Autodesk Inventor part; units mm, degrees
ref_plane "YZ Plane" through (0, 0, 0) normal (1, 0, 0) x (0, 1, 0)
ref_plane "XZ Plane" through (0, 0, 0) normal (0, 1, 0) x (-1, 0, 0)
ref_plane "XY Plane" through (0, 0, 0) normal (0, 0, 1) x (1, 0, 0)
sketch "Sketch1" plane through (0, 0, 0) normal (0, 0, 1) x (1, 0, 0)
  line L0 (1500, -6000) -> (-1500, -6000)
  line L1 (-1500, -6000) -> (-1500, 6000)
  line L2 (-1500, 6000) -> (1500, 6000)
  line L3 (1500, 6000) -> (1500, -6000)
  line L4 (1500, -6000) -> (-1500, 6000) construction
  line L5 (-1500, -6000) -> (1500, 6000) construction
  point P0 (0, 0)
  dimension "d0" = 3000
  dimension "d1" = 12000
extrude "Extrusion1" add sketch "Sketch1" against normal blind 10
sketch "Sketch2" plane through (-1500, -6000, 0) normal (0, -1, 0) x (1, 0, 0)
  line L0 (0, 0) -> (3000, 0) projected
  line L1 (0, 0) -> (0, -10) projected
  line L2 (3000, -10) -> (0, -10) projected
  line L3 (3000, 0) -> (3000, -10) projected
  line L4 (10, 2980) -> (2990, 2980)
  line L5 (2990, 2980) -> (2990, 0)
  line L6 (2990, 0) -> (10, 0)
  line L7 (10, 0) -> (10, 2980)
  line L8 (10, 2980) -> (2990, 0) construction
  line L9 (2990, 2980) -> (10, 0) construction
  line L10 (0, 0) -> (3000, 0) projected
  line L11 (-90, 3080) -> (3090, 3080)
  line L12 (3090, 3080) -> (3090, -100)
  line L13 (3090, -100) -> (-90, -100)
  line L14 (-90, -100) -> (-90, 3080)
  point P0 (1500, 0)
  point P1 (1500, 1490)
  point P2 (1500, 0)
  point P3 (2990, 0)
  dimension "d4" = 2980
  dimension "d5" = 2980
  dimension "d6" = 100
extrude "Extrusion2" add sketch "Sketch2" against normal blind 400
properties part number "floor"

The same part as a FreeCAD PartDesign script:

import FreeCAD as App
import Part
import Sketcher

V = App.Vector
Q = App.Units.Quantity


def add_polygon(sketch, points):
    """Adds a closed chain of lines whose ends are joined by coincident constraints."""
    first, n = sketch.GeometryCount, len(points)
    for a, b in zip(points, points[1:] + points[:1]):
        sketch.addGeometry(Part.LineSegment(App.Vector(*a, 0), App.Vector(*b, 0)), False)
    for i in range(n):
        sketch.addConstraint(Sketcher.Constraint("Coincident", first + i, 2, first + (i + 1) % n, 1))

doc = App.newDocument("Part")
body = doc.addObject("PartDesign::Body", "Body")

# Sketch on XY plane
sketch1 = body.newObject("Sketcher::SketchObject", "Sketch")
sketch1.AttachmentSupport = (doc.getObject("XY_Plane"), [""])
sketch1.MapMode = "FlatFace"
add_polygon(sketch1, [(-1500, -6000), (1500, -6000), (1500, 6000), (-1500, 6000)])  # lines 0-3
sketch1.addConstraint(Sketcher.Constraint("Horizontal", 0))
sketch1.addConstraint(Sketcher.Constraint("Vertical", 1))
sketch1.addConstraint(Sketcher.Constraint("Horizontal", 2))
sketch1.addConstraint(Sketcher.Constraint("Vertical", 3))
sketch1.addConstraint(Sketcher.Constraint("Symmetric", 0, 2, 2, 2, -1, 1))
sketch1.addConstraint(Sketcher.Constraint("DistanceX", 0, 1, 0, 2, Q("3000 mm")))
sketch1.addConstraint(Sketcher.Constraint("DistanceY", 1, 1, 1, 2, Q("12000 mm")))
pad1 = body.newObject("PartDesign::Pad", "Pad")
pad1.Profile = sketch1
pad1.Length = 10
pad1.Reversed = True

# Sketch on XZ plane
sketch2 = body.newObject("Sketcher::SketchObject", "Sketch001")
sketch2.AttachmentSupport = (doc.getObject("XZ_Plane"), [""])
sketch2.MapMode = "FlatFace"
sketch2.AttachmentOffset = App.Placement(V(0, 0, 6000), App.Rotation())
add_polygon(sketch2, [(1590, 3080), (-1590, 3080), (-1590, -100), (1590, -100)])  # lines 0-3
add_polygon(sketch2, [(-1500, -10), (-1500, 0), (-1490, 0), (-1490, 2980), (1490, 2980), (1490, 0), (1500, 0), (1500, -10)])  # lines 4-11
sketch2.addConstraint(Sketcher.Constraint("Horizontal", 0))
sketch2.addConstraint(Sketcher.Constraint("Vertical", 1))
sketch2.addConstraint(Sketcher.Constraint("Horizontal", 2))
sketch2.addConstraint(Sketcher.Constraint("Vertical", 3))
sketch2.addConstraint(Sketcher.Constraint("Vertical", 4))
sketch2.addConstraint(Sketcher.Constraint("Horizontal", 5))
sketch2.addConstraint(Sketcher.Constraint("Vertical", 6))
sketch2.addConstraint(Sketcher.Constraint("Horizontal", 7))
sketch2.addConstraint(Sketcher.Constraint("Vertical", 8))
sketch2.addConstraint(Sketcher.Constraint("Horizontal", 9))
sketch2.addConstraint(Sketcher.Constraint("Vertical", 10))
sketch2.addConstraint(Sketcher.Constraint("Horizontal", 11))
sketch2.addConstraint(Sketcher.Constraint("Symmetric", 5, 2, 8, 2, -1, 1))
sketch2.addConstraint(Sketcher.Constraint("Symmetric", 4, 2, 9, 2, -2))
sketch2.addConstraint(Sketcher.Constraint("Equal", 2, 1))
sketch2.addConstraint(Sketcher.Constraint("Equal", 9, 4))
sketch2.addConstraint(Sketcher.Constraint("Equal", 7, 6))
sketch2.addConstraint(Sketcher.Constraint("DistanceX", 7, 1, 7, 2, Q("2980 mm")))
sketch2.addConstraint(Sketcher.Constraint("DistanceY", 1, 2, -1, 1, Q("100 mm")))
sketch2.addConstraint(Sketcher.Constraint("DistanceX", 1, 2, 5, 2, Q("100 mm")))
sketch2.addConstraint(Sketcher.Constraint("DistanceY", 6, 2, 0, 2, Q("100 mm")))
sketch2.addConstraint(Sketcher.Constraint("DistanceX", 5, 1, 5, 2, Q("10 mm")))
pad2 = body.newObject("PartDesign::Pad", "Pad001")
pad2.Profile = sketch2
pad2.Length = 400
pad2.Reversed = True

doc.recompute()
